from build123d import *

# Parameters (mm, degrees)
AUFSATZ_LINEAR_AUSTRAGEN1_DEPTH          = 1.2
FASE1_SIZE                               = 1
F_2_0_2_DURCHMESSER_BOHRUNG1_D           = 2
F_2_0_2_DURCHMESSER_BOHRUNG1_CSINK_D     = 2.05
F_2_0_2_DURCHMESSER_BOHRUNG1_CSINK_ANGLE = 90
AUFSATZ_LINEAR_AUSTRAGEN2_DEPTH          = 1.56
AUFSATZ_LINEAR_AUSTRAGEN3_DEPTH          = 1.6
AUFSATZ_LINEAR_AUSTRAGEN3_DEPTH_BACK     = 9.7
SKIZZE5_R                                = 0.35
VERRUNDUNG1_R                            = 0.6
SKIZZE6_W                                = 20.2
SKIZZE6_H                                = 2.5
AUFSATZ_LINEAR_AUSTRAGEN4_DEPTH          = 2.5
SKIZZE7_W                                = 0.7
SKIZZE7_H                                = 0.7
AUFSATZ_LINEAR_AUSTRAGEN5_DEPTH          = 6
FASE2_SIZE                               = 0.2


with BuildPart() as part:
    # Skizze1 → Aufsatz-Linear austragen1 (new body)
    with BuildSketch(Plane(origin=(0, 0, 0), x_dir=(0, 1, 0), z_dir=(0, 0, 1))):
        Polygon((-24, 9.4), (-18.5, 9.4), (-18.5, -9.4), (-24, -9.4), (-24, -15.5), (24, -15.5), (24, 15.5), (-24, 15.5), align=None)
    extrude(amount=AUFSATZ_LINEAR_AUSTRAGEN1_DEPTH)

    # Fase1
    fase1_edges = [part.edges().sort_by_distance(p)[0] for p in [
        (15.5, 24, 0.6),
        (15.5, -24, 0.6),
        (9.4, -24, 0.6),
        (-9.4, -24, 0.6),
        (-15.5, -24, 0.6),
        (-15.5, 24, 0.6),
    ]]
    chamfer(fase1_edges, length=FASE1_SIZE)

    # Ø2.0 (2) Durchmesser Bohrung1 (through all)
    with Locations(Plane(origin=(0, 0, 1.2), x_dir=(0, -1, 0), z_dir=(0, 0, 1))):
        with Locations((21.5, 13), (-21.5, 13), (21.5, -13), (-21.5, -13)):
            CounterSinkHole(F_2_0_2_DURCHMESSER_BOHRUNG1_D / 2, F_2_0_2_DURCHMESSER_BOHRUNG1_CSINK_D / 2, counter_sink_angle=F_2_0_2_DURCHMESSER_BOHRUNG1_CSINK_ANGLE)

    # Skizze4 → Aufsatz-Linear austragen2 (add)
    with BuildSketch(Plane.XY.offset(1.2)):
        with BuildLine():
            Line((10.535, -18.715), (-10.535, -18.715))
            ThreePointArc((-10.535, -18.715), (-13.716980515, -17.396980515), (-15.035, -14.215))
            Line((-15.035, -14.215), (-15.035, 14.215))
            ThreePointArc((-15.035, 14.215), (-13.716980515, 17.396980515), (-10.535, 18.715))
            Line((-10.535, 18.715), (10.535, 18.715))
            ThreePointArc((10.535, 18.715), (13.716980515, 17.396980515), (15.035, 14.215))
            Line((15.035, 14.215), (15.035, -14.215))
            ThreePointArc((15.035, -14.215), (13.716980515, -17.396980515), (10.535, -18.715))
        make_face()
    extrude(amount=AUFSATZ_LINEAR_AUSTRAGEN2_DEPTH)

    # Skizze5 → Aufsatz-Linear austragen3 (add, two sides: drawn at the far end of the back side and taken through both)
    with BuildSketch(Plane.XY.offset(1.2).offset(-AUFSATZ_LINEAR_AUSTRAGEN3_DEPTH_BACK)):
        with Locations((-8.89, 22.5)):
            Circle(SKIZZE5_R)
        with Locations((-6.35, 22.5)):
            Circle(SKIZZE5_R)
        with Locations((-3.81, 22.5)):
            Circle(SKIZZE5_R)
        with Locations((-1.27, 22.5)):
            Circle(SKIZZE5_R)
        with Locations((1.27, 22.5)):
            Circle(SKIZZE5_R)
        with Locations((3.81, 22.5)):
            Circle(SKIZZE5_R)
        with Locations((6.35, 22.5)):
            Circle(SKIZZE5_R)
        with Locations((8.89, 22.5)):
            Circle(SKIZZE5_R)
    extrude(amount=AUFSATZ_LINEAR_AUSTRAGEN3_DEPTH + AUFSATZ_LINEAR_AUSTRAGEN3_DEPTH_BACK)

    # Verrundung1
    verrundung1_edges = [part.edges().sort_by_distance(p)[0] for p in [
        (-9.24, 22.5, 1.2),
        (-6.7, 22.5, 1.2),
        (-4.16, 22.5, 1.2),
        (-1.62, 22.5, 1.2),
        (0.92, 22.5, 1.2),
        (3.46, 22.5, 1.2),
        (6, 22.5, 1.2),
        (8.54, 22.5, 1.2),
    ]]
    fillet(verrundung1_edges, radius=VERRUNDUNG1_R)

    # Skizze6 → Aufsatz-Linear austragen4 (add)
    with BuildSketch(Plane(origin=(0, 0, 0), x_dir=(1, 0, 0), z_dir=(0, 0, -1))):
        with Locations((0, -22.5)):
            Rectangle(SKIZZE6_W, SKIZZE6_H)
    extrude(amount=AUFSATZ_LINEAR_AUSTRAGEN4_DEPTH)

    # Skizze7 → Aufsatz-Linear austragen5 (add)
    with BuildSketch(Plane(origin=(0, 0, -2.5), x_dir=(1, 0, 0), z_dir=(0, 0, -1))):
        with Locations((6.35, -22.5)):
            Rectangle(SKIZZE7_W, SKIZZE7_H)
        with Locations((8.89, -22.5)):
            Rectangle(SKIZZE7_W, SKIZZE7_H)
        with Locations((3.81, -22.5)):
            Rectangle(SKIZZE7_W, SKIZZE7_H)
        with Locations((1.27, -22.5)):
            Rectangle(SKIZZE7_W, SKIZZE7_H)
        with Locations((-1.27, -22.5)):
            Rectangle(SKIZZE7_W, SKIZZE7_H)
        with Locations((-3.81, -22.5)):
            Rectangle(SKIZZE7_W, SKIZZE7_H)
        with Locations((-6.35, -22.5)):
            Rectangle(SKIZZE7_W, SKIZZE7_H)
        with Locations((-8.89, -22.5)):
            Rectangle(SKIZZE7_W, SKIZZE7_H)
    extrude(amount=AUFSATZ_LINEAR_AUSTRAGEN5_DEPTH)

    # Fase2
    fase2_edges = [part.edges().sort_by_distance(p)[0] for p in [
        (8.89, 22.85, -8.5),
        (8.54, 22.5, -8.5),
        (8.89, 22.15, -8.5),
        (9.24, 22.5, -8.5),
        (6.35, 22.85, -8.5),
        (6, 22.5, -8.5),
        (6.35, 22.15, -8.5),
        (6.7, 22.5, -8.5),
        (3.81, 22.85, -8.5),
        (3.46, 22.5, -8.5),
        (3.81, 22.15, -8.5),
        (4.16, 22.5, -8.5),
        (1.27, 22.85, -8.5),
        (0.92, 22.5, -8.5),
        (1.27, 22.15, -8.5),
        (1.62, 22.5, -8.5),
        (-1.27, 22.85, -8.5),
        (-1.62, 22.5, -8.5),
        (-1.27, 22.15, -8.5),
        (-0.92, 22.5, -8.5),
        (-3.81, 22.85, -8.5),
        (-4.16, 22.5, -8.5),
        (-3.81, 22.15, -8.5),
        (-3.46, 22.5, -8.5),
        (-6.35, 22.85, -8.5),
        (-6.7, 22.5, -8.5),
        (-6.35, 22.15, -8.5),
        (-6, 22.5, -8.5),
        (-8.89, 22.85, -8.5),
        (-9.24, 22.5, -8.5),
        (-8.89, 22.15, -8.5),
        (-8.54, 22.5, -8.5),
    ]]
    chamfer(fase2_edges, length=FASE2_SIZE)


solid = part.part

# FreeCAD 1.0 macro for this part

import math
import FreeCAD as App
import Part
import Sketcher
from FreeCAD import Vector
Q = App.Units.Quantity


def edges_at(feature, points):
    """Names of the edges that pass closest to the given points."""
    edges = feature.Shape.Edges
    near = lambda p: min(range(len(edges)), key=lambda i: edges[i].distToShape(Part.Vertex(*p))[0])
    return sorted({f"Edge{near(p) + 1}" for p in points})


def add_polygon(sketch, points):
    """Adds a closed chain of lines whose ends are joined by coincident constraints."""
    first, n = sketch.GeometryCount, len(points)
    for a, b in zip(points, points[1:] + points[:1]):
        sketch.addGeometry(Part.LineSegment(App.Vector(*a, 0), App.Vector(*b, 0)), False)
    for i in range(n):
        sketch.addConstraint(Sketcher.Constraint("Coincident", first + i, 2, first + (i + 1) % n, 1))

doc = App.newDocument("Part")
body = doc.addObject("PartDesign::Body", "Body")

# Sketch on XY plane
sketch1 = body.newObject("Sketcher::SketchObject", "Sketch")
sketch1.AttachmentSupport = (doc.getObject("XY_Plane"), [""])
sketch1.MapMode = "FlatFace"
add_polygon(sketch1, [(-9, -24), (-9, -18), (9, -18), (9, -24), (16, -24), (16, 24), (-16, 24), (-16, -24)])  # lines 0-7
sketch1.addConstraint(Sketcher.Constraint("Vertical", 0))
sketch1.addConstraint(Sketcher.Constraint("Horizontal", 1))
sketch1.addConstraint(Sketcher.Constraint("Vertical", 2))
sketch1.addConstraint(Sketcher.Constraint("Horizontal", 3))
sketch1.addConstraint(Sketcher.Constraint("Vertical", 4))
sketch1.addConstraint(Sketcher.Constraint("Horizontal", 5))
sketch1.addConstraint(Sketcher.Constraint("Vertical", 6))
sketch1.addConstraint(Sketcher.Constraint("Horizontal", 7))
sketch1.addConstraint(Sketcher.Constraint("Symmetric", 3, 2, 5, 2, -1, 1))
sketch1.addConstraint(Sketcher.Constraint("Symmetric", 2, 2, 7, 2, -2))
sketch1.addConstraint(Sketcher.Constraint("DistanceX", 5, 2, 5, 1, Q("31 mm")))
sketch1.addConstraint(Sketcher.Constraint("DistanceY", 4, 1, 4, 2, Q("48 mm")))
sketch1.addConstraint(Sketcher.Constraint("DistanceX", 1, 1, 1, 2, Q("18.8 mm")))
sketch1.addConstraint(Sketcher.Constraint("DistanceY", 0, 1, 0, 2, Q("5.5 mm")))
pad1 = body.newObject("PartDesign::Pad", "Pad")
pad1.Profile = sketch1
pad1.Length = 1.2
doc.recompute()

chamfer = body.newObject("PartDesign::Chamfer", "Chamfer")
chamfer.Base = (pad1, edges_at(pad1, [
    (15.5, 24, 0.6),
    (15.5, -24, 0.6),
    (9.4, -24, 0.6),
    (-9.4, -24, 0.6),
    (-15.5, -24, 0.6),
    (-15.5, 24, 0.6),
]))
chamfer.Size = 1

# Sketch on XY plane
sketch2 = body.newObject("Sketcher::SketchObject", "Sketch001")
sketch2.AttachmentSupport = (doc.getObject("XY_Plane"), [""])
sketch2.MapMode = "FlatFace"
sketch2.AttachmentOffset = App.Placement(Vector(0, 0, 1.2), App.Rotation())
sketch2.addGeometry(Part.Circle(Vector(13, -21.5, 0), Vector(0, 0, 1), 1), False)
sketch2.addGeometry(Part.Circle(Vector(13, 21.5, 0), Vector(0, 0, 1), 1), False)
sketch2.addGeometry(Part.Circle(Vector(-13, -21.5, 0), Vector(0, 0, 1), 1), False)
sketch2.addGeometry(Part.Circle(Vector(-13, 21.5, 0), Vector(0, 0, 1), 1), False)
sketch2.addConstraint(Sketcher.Constraint("Equal", 0, 1))
sketch2.addConstraint(Sketcher.Constraint("Equal", 1, 2))
sketch2.addConstraint(Sketcher.Constraint("Equal", 2, 3))
sketch2.addConstraint(Sketcher.Constraint("Symmetric", 1, 3, 2, 3, -1, 1))
sketch2.addConstraint(Sketcher.Constraint("Symmetric", 0, 3, 3, 3, -1, 1))
sketch2.addConstraint(Sketcher.Constraint("Symmetric", 0, 3, 2, 3, -2))
sketch2.addConstraint(Sketcher.Constraint("Diameter", 0, Q("2 mm")))
sketch2.addConstraint(Sketcher.Constraint("DistanceX", -1, 1, 0, 3, Q("13 mm")))
sketch2.addConstraint(Sketcher.Constraint("DistanceY", 0, 3, 1, 3, Q("43 mm")))
doc.recompute()
hole = body.newObject("PartDesign::Hole", "Hole")
hole.Profile = sketch2
hole.ThreadType = "None"
hole.Diameter = 2
hole.DepthType = "ThroughAll"
hole.HoleCutType = "Countersink"
hole.HoleCutDiameter = 2.05
hole.HoleCutCountersinkAngle = 90

# Sketch on XY plane
sketch3 = body.newObject("Sketcher::SketchObject", "Sketch002")
sketch3.AttachmentSupport = (doc.getObject("XY_Plane"), [""])
sketch3.MapMode = "FlatFace"
sketch3.AttachmentOffset = App.Placement(Vector(0, 0, 1.2), App.Rotation())
sketch3.addGeometry(Part.LineSegment(Vector(-10.5, -18.7, 0), Vector(10.5, -18.7, 0)), False)
sketch3.addGeometry(Part.ArcOfCircle(Part.Circle(Vector(10.5, -14.2, 0), Vector(0, 0, 1), 4.5), math.radians(-90), math.radians(0)), False)
sketch3.addGeometry(Part.LineSegment(Vector(15, -14.2, 0), Vector(15, 14.2, 0)), False)
sketch3.addGeometry(Part.ArcOfCircle(Part.Circle(Vector(10.5, 14.2, 0), Vector(0, 0, 1), 4.5), math.radians(0), math.radians(90)), False)
sketch3.addGeometry(Part.LineSegment(Vector(10.5, 18.7, 0), Vector(-10.5, 18.7, 0)), False)
sketch3.addGeometry(Part.ArcOfCircle(Part.Circle(Vector(-10.5, 14.2, 0), Vector(0, 0, 1), 4.5), math.radians(90), math.radians(180)), False)
sketch3.addGeometry(Part.LineSegment(Vector(-15, 14.2, 0), Vector(-15, -14.2, 0)), False)
sketch3.addGeometry(Part.ArcOfCircle(Part.Circle(Vector(-10.5, -14.2, 0), Vector(0, 0, 1), 4.5), math.radians(-180), math.radians(-90)), False)
sketch3.addConstraint(Sketcher.Constraint("Tangent", 0, 2, 1, 1))
sketch3.addConstraint(Sketcher.Constraint("Tangent", 1, 2, 2, 1))
sketch3.addConstraint(Sketcher.Constraint("Tangent", 2, 2, 3, 1))
sketch3.addConstraint(Sketcher.Constraint("Tangent", 3, 2, 4, 1))
sketch3.addConstraint(Sketcher.Constraint("Tangent", 4, 2, 5, 1))
sketch3.addConstraint(Sketcher.Constraint("Tangent", 5, 2, 6, 1))
sketch3.addConstraint(Sketcher.Constraint("Tangent", 6, 2, 7, 1))
sketch3.addConstraint(Sketcher.Constraint("Tangent", 7, 2, 0, 1))
sketch3.addConstraint(Sketcher.Constraint("Horizontal", 0))
sketch3.addConstraint(Sketcher.Constraint("Vertical", 2))
sketch3.addConstraint(Sketcher.Constraint("Horizontal", 4))
sketch3.addConstraint(Sketcher.Constraint("Vertical", 6))
sketch3.addConstraint(Sketcher.Constraint("Equal", 1, 3))
sketch3.addConstraint(Sketcher.Constraint("Equal", 3, 5))
sketch3.addConstraint(Sketcher.Constraint("Equal", 5, 7))
sketch3.addConstraint(Sketcher.Constraint("Symmetric", 1, 3, 5, 3, -1, 1))
sketch3.addConstraint(Sketcher.Constraint("Radius", 1, Q("4.5 mm")))
sketch3.addConstraint(Sketcher.Constraint("DistanceX", 0, 1, 0, 2, Q("21.07 mm")))
sketch3.addConstraint(Sketcher.Constraint("DistanceY", 2, 1, 2, 2, Q("28.43 mm")))
pad2 = body.newObject("PartDesign::Pad", "Pad001")
pad2.Profile = sketch3
pad2.Length = 1.56

# Sketch on XY plane
sketch4 = body.newObject("Sketcher::SketchObject", "Sketch003")
sketch4.AttachmentSupport = (doc.getObject("XY_Plane"), [""])
sketch4.MapMode = "FlatFace"
sketch4.AttachmentOffset = App.Placement(Vector(0, 0, 1.2), App.Rotation())
sketch4.addGeometry(Part.Circle(Vector(-8.89, 22.5, 0), Vector(0, 0, 1), 0.35), False)
sketch4.addGeometry(Part.Circle(Vector(-6.35, 22.5, 0), Vector(0, 0, 1), 0.35), False)
sketch4.addGeometry(Part.Circle(Vector(-3.81, 22.5, 0), Vector(0, 0, 1), 0.35), False)
sketch4.addGeometry(Part.Circle(Vector(-1.27, 22.5, 0), Vector(0, 0, 1), 0.35), False)
sketch4.addGeometry(Part.Circle(Vector(1.27, 22.5, 0), Vector(0, 0, 1), 0.35), False)
sketch4.addGeometry(Part.Circle(Vector(3.81, 22.5, 0), Vector(0, 0, 1), 0.35), False)
sketch4.addGeometry(Part.Circle(Vector(6.35, 22.5, 0), Vector(0, 0, 1), 0.35), False)
sketch4.addGeometry(Part.Circle(Vector(8.89, 22.5, 0), Vector(0, 0, 1), 0.35), False)
sketch4.addConstraint(Sketcher.Constraint("Equal", 0, 1))
sketch4.addConstraint(Sketcher.Constraint("Equal", 1, 2))
sketch4.addConstraint(Sketcher.Constraint("Equal", 2, 3))
sketch4.addConstraint(Sketcher.Constraint("Equal", 3, 4))
sketch4.addConstraint(Sketcher.Constraint("Equal", 4, 5))
sketch4.addConstraint(Sketcher.Constraint("Equal", 5, 6))
sketch4.addConstraint(Sketcher.Constraint("Equal", 6, 7))
sketch4.addConstraint(Sketcher.Constraint("Symmetric", 3, 3, 4, 3, -2))
sketch4.addConstraint(Sketcher.Constraint("Symmetric", 2, 3, 5, 3, -2))
sketch4.addConstraint(Sketcher.Constraint("Symmetric", 1, 3, 6, 3, -2))
sketch4.addConstraint(Sketcher.Constraint("Symmetric", 0, 3, 7, 3, -2))
sketch4.addConstraint(Sketcher.Constraint("Horizontal", 0, 3, 1, 3))
sketch4.addConstraint(Sketcher.Constraint("Horizontal", 1, 3, 2, 3))
sketch4.addConstraint(Sketcher.Constraint("Horizontal", 2, 3, 3, 3))
sketch4.addConstraint(Sketcher.Constraint("Diameter", 0, Q("0.7 mm")))
sketch4.addConstraint(Sketcher.Constraint("DistanceY", -1, 1, 0, 3, Q("22.5 mm")))
sketch4.addConstraint(Sketcher.Constraint("DistanceX", 0, 3, 5, 3, Q("12.7 mm")))
sketch4.addConstraint(Sketcher.Constraint("DistanceX", 1, 3, 6, 3, Q("12.7 mm")))
sketch4.addConstraint(Sketcher.Constraint("DistanceX", 0, 3, -1, 1, Q("8.89 mm")))
sketch4.addConstraint(Sketcher.Constraint("DistanceX", 3, 3, -1, 1, Q("1.27 mm")))
pad3 = body.newObject("PartDesign::Pad", "Pad002")
pad3.Profile = sketch4
pad3.Type = "TwoLengths"
pad3.Length = 1.6
pad3.Length2 = 9.7
doc.recompute()

fillet = body.newObject("PartDesign::Fillet", "Fillet")
fillet.Base = (pad3, edges_at(pad3, [
    (-9.24, 22.5, 1.2),
    (-6.7, 22.5, 1.2),
    (-4.16, 22.5, 1.2),
    (-1.62, 22.5, 1.2),
    (0.92, 22.5, 1.2),
    (3.46, 22.5, 1.2),
    (6, 22.5, 1.2),
    (8.54, 22.5, 1.2),
]))
fillet.Radius = 0.6

# Sketch on XY plane
sketch5 = body.newObject("Sketcher::SketchObject", "Sketch004")
sketch5.AttachmentSupport = (doc.getObject("XY_Plane"), [""])
sketch5.MapMode = "FlatFace"
add_polygon(sketch5, [(-10.1, 21.2), (-10.1, 23.8), (10.1, 23.8), (10.1, 21.2)])  # lines 0-3
sketch5.addConstraint(Sketcher.Constraint("Vertical", 0))
sketch5.addConstraint(Sketcher.Constraint("Horizontal", 1))
sketch5.addConstraint(Sketcher.Constraint("Vertical", 2))
sketch5.addConstraint(Sketcher.Constraint("Horizontal", 3))
sketch5.addConstraint(Sketcher.Constraint("DistanceX", 1, 1, 1, 2, Q("20.2 mm")))
sketch5.addConstraint(Sketcher.Constraint("DistanceY", 0, 1, 0, 2, Q("2.5 mm")))
sketch5.addConstraint(Sketcher.Constraint("DistanceX", 0, 2, -1, 1, Q("10.1 mm")))
sketch5.addConstraint(Sketcher.Constraint("DistanceY", -1, 1, 0, 2, Q("23.75 mm")))
pad4 = body.newObject("PartDesign::Pad", "Pad003")
pad4.Profile = sketch5
pad4.Length = 2.5
pad4.Reversed = True

# Sketch on XY plane
sketch6 = body.newObject("Sketcher::SketchObject", "Sketch005")
sketch6.AttachmentSupport = (doc.getObject("XY_Plane"), [""])
sketch6.MapMode = "FlatFace"
sketch6.AttachmentOffset = App.Placement(Vector(0, 0, -2.5), App.Rotation())
add_polygon(sketch6, [(6, 22.1), (6, 22.9), (6.7, 22.9), (6.7, 22.1)])  # lines 0-3
add_polygon(sketch6, [(8.5, 22.1), (8.5, 22.9), (9.2, 22.9), (9.2, 22.1)])  # lines 4-7
add_polygon(sketch6, [(3.5, 22.1), (3.5, 22.9), (4.2, 22.9), (4.2, 22.1)])  # lines 8-11
add_polygon(sketch6, [(0.9, 22.1), (0.9, 22.9), (1.6, 22.9), (1.6, 22.1)])  # lines 12-15
add_polygon(sketch6, [(-1.6, 22.1), (-1.6, 22.9), (-0.9, 22.9), (-0.9, 22.1)])  # lines 16-19
add_polygon(sketch6, [(-4.2, 22.1), (-4.2, 22.9), (-3.5, 22.9), (-3.5, 22.1)])  # lines 20-23
add_polygon(sketch6, [(-6.7, 22.1), (-6.7, 22.9), (-6, 22.9), (-6, 22.1)])  # lines 24-27
add_polygon(sketch6, [(-9.2, 22.1), (-9.2, 22.9), (-8.5, 22.9), (-8.5, 22.1)])  # lines 28-31
sketch6.addConstraint(Sketcher.Constraint("Vertical", 0))
sketch6.addConstraint(Sketcher.Constraint("Horizontal", 1))
sketch6.addConstraint(Sketcher.Constraint("Vertical", 2))
sketch6.addConstraint(Sketcher.Constraint("Horizontal", 3))
sketch6.addConstraint(Sketcher.Constraint("Vertical", 4))
sketch6.addConstraint(Sketcher.Constraint("Horizontal", 5))
sketch6.addConstraint(Sketcher.Constraint("Vertical", 6))
sketch6.addConstraint(Sketcher.Constraint("Horizontal", 7))
sketch6.addConstraint(Sketcher.Constraint("Vertical", 8))
sketch6.addConstraint(Sketcher.Constraint("Horizontal", 9))
sketch6.addConstraint(Sketcher.Constraint("Vertical", 10))
sketch6.addConstraint(Sketcher.Constraint("Horizontal", 11))
sketch6.addConstraint(Sketcher.Constraint("Vertical", 12))
sketch6.addConstraint(Sketcher.Constraint("Horizontal", 13))
sketch6.addConstraint(Sketcher.Constraint("Vertical", 14))
sketch6.addConstraint(Sketcher.Constraint("Horizontal", 15))
sketch6.addConstraint(Sketcher.Constraint("Vertical", 16))
sketch6.addConstraint(Sketcher.Constraint("Horizontal", 17))
sketch6.addConstraint(Sketcher.Constraint("Vertical", 18))
sketch6.addConstraint(Sketcher.Constraint("Horizontal", 19))
sketch6.addConstraint(Sketcher.Constraint("Vertical", 20))
sketch6.addConstraint(Sketcher.Constraint("Horizontal", 21))
sketch6.addConstraint(Sketcher.Constraint("Vertical", 22))
sketch6.addConstraint(Sketcher.Constraint("Horizontal", 23))
sketch6.addConstraint(Sketcher.Constraint("Vertical", 24))
sketch6.addConstraint(Sketcher.Constraint("Horizontal", 25))
sketch6.addConstraint(Sketcher.Constraint("Vertical", 26))
sketch6.addConstraint(Sketcher.Constraint("Horizontal", 27))
sketch6.addConstraint(Sketcher.Constraint("Vertical", 28))
sketch6.addConstraint(Sketcher.Constraint("Horizontal", 29))
sketch6.addConstraint(Sketcher.Constraint("Vertical", 30))
sketch6.addConstraint(Sketcher.Constraint("Horizontal", 31))
sketch6.addConstraint(Sketcher.Constraint("Symmetric", 13, 2, 16, 2, -2))
sketch6.addConstraint(Sketcher.Constraint("Symmetric", 15, 2, 18, 2, -2))
sketch6.addConstraint(Sketcher.Constraint("Symmetric", 9, 2, 20, 2, -2))
sketch6.addConstraint(Sketcher.Constraint("Symmetric", 11, 2, 22, 2, -2))
sketch6.addConstraint(Sketcher.Constraint("Symmetric", 1, 2, 24, 2, -2))
sketch6.addConstraint(Sketcher.Constraint("Symmetric", 3, 2, 26, 2, -2))
sketch6.addConstraint(Sketcher.Constraint("Symmetric", 5, 2, 28, 2, -2))
sketch6.addConstraint(Sketcher.Constraint("Symmetric", 7, 2, 30, 2, -2))
sketch6.addConstraint(Sketcher.Constraint("Horizontal", 1, 2, 4, 2))
sketch6.addConstraint(Sketcher.Constraint("Horizontal", 3, 2, 6, 2))
sketch6.addConstraint(Sketcher.Constraint("Horizontal", 5, 2, 8, 2))
sketch6.addConstraint(Sketcher.Constraint("Horizontal", 7, 2, 10, 2))
sketch6.addConstraint(Sketcher.Constraint("Horizontal", 9, 2, 12, 2))
sketch6.addConstraint(Sketcher.Constraint("Horizontal", 11, 2, 14, 2))
sketch6.addConstraint(Sketcher.Constraint("Equal", 3, 5))
sketch6.addConstraint(Sketcher.Constraint("Equal", 7, 9))
sketch6.addConstraint(Sketcher.Constraint("Equal", 11, 13))
sketch6.addConstraint(Sketcher.Constraint("Equal", 31, 0))
sketch6.addConstraint(Sketcher.Constraint("DistanceX", 1, 1, 1, 2, Q("0.7 mm")))
sketch6.addConstraint(Sketcher.Constraint("DistanceX", -1, 1, 0, 2, Q("6 mm")))
sketch6.addConstraint(Sketcher.Constraint("DistanceY", -1, 1, 0, 2, Q("22.85 mm")))
sketch6.addConstraint(Sketcher.Constraint("DistanceX", -1, 1, 4, 2, Q("8.54 mm")))
sketch6.addConstraint(Sketcher.Constraint("DistanceX", -1, 1, 8, 2, Q("3.46 mm")))
sketch6.addConstraint(Sketcher.Constraint("DistanceX", -1, 1, 12, 2, Q("0.92 mm")))
pad5 = body.newObject("PartDesign::Pad", "Pad004")
pad5.Profile = sketch6
pad5.Length = 6
pad5.Reversed = True
doc.recompute()

chamfer2 = body.newObject("PartDesign::Chamfer", "Chamfer001")
chamfer2.Base = (pad5, edges_at(pad5, [
    (8.89, 22.85, -8.5),
    (8.54, 22.5, -8.5),
    (8.89, 22.15, -8.5),
    (9.24, 22.5, -8.5),
    (6.35, 22.85, -8.5),
    (6, 22.5, -8.5),
    (6.35, 22.15, -8.5),
    (6.7, 22.5, -8.5),
    (3.81, 22.85, -8.5),
    (3.46, 22.5, -8.5),
    (3.81, 22.15, -8.5),
    (4.16, 22.5, -8.5),
    (1.27, 22.85, -8.5),
    (0.92, 22.5, -8.5),
    (1.27, 22.15, -8.5),
    (1.62, 22.5, -8.5),
    (-1.27, 22.85, -8.5),
    (-1.62, 22.5, -8.5),
    (-1.27, 22.15, -8.5),
    (-0.92, 22.5, -8.5),
    (-3.81, 22.85, -8.5),
    (-4.16, 22.5, -8.5),
    (-3.81, 22.15, -8.5),
    (-3.46, 22.5, -8.5),
    (-6.35, 22.85, -8.5),
    (-6.7, 22.5, -8.5),
    (-6.35, 22.15, -8.5),
    (-6, 22.5, -8.5),
    (-8.89, 22.85, -8.5),
    (-9.24, 22.5, -8.5),
    (-8.89, 22.15, -8.5),
    (-8.54, 22.5, -8.5),
]))
chamfer2.Size = 0.2

doc.recompute()
